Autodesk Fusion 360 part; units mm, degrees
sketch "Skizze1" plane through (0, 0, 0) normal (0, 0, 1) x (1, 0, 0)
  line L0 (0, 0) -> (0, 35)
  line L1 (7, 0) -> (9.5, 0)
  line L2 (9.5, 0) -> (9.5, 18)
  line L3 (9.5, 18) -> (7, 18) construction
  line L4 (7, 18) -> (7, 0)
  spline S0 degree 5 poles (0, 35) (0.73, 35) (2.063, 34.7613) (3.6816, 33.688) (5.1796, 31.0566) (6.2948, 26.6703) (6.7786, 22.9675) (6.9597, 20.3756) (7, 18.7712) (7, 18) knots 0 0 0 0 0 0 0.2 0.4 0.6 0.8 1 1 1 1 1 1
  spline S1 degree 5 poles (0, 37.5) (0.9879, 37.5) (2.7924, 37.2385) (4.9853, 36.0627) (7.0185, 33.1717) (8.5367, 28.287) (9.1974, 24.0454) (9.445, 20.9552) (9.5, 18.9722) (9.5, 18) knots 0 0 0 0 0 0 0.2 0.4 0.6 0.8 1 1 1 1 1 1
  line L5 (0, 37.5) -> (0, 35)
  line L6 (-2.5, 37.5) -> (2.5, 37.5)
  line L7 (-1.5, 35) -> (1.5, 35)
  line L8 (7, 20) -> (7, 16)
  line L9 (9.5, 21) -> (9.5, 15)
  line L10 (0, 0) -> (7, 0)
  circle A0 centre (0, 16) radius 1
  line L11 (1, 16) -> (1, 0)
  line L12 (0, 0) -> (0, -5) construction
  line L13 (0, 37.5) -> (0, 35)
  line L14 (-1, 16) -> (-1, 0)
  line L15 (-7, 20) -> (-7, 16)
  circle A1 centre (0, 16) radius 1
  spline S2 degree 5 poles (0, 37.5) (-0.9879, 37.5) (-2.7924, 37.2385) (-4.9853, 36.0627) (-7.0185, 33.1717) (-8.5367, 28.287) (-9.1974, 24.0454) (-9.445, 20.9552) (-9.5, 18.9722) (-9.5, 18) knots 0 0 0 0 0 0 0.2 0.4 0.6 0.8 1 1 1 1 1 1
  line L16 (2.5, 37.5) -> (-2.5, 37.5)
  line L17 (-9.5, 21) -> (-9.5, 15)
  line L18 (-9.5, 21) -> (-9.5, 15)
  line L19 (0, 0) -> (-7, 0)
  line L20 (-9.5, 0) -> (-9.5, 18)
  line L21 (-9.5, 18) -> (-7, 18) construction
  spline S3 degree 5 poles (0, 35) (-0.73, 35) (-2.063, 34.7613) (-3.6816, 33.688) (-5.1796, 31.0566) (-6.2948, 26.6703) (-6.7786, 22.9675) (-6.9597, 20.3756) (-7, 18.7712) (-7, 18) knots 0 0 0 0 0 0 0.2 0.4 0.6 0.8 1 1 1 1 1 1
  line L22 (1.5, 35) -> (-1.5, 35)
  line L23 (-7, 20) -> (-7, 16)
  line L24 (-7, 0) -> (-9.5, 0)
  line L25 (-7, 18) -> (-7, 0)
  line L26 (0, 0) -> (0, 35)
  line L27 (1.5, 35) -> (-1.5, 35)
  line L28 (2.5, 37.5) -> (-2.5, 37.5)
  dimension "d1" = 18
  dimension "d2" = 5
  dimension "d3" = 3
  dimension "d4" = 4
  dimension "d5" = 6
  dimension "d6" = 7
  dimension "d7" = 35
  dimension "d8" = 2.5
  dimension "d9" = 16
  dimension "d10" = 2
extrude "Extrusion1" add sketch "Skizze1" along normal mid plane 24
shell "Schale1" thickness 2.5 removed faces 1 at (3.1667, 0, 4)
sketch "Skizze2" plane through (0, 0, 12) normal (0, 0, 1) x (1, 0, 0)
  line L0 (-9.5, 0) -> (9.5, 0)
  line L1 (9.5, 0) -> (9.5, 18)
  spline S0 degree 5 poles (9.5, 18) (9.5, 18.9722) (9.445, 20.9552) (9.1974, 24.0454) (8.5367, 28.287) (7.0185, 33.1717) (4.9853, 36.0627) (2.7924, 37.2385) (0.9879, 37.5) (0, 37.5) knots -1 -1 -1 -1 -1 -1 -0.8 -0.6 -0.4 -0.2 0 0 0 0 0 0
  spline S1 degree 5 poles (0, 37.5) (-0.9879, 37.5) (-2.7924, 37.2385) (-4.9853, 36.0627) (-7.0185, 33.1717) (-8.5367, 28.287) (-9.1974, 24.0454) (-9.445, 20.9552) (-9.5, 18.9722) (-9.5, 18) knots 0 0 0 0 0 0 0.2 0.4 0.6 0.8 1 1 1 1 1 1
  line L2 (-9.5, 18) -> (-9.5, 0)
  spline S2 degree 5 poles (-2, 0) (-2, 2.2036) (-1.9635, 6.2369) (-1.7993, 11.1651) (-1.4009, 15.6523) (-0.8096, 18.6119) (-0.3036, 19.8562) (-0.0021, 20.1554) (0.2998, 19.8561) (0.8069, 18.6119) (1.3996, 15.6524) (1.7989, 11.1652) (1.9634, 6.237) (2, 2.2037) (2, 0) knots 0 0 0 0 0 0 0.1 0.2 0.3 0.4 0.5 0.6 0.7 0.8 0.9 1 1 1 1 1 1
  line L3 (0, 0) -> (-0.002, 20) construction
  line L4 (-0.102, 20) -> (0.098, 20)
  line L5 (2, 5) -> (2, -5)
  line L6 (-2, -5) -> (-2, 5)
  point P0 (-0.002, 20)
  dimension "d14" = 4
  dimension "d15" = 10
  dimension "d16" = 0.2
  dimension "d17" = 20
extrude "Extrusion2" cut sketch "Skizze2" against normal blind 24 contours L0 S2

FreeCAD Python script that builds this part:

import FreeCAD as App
import Part
import Sketcher
from FreeCAD import Vector


def faces_at(feature, points):
    """Names of the faces that lie closest to the given points."""
    faces = feature.Shape.Faces
    near = lambda p: min(range(len(faces)), key=lambda i: faces[i].distToShape(Part.Vertex(*p))[0])
    return sorted({f"Face{near(p) + 1}" for p in points})

doc = App.newDocument("Part")
body = doc.addObject("PartDesign::Body", "Body")

sketch1 = doc.addObject("Sketcher::SketchObject", "Sketch")
body.addObject(sketch1)
sketch1.AttachmentSupport = (doc.XY_Plane, [""])
sketch1.MapMode = "FlatFace"
sketch1.addGeometry(Part.LineSegment(Vector(9.5, 0, 0), Vector(9.5, 18, 0)), False)
sketch1.addGeometry(Part.BSplineCurve([Vector(0, 37.5, 0), Vector(0.9879, 37.5, 0), Vector(2.7924, 37.2385, 0), Vector(4.9853, 36.0627, 0), Vector(7.0185, 33.1717, 0), Vector(8.5367, 28.287, 0), Vector(9.1974, 24.0454, 0), Vector(9.445, 20.9552, 0), Vector(9.5, 18.9722, 0), Vector(9.5, 18, 0)], [6, 1, 1, 1, 1, 6], [0, 0.2, 0.4, 0.6, 0.8, 1], False, 5, [1, 1, 1, 1, 1, 1, 1, 1, 1, 1], False), False)
sketch1.addGeometry(Part.BSplineCurve([Vector(0, 37.5, 0), Vector(-0.9879, 37.5, 0), Vector(-2.7924, 37.2385, 0), Vector(-4.9853, 36.0627, 0), Vector(-7.0185, 33.1717, 0), Vector(-8.5367, 28.287, 0), Vector(-9.1974, 24.0454, 0), Vector(-9.445, 20.9552, 0), Vector(-9.5, 18.9722, 0), Vector(-9.5, 18, 0)], [6, 1, 1, 1, 1, 6], [0, 0.2, 0.4, 0.6, 0.8, 1], False, 5, [1, 1, 1, 1, 1, 1, 1, 1, 1, 1], False), False)
sketch1.addGeometry(Part.LineSegment(Vector(-9.5, 18, 0), Vector(-9.5, 0, 0)), False)
sketch1.addGeometry(Part.LineSegment(Vector(-9.5, 0, 0), Vector(9.5, 0, 0)), False)
sketch1.addConstraint(Sketcher.Constraint("Block", 1))
sketch1.addConstraint(Sketcher.Constraint("Block", 2))
sketch1.addConstraint(Sketcher.Constraint("Coincident", 0, 2, 1, 2))
sketch1.addConstraint(Sketcher.Constraint("Coincident", 2, 2, 3, 1))
sketch1.addConstraint(Sketcher.Constraint("Coincident", 3, 2, 4, 1))
sketch1.addConstraint(Sketcher.Constraint("Coincident", 4, 2, 0, 1))
sketch1.addConstraint(Sketcher.Constraint("Vertical", 0))
sketch1.addConstraint(Sketcher.Constraint("Vertical", 3))
sketch1.addConstraint(Sketcher.Constraint("Horizontal", 4))
sketch1.addConstraint(Sketcher.Constraint("PointOnObject", 3, 2, -1))
pad1 = doc.addObject("PartDesign::Pad", "Pad")
body.addObject(pad1)
pad1.Profile = sketch1
pad1.Length = 24
pad1.Midplane = True
doc.recompute()

thickness = doc.addObject("PartDesign::Thickness", "Thickness")
body.addObject(thickness)
thickness.Base = (pad1, faces_at(pad1, [(3.167, 0, 4)]))
thickness.Value = 2.5
thickness.Reversed = True
thickness.Join = "Intersection"

sketch2 = doc.addObject("Sketcher::SketchObject", "Sketch001")
body.addObject(sketch2)
sketch2.AttachmentSupport = (doc.XY_Plane, [""])
sketch2.MapMode = "FlatFace"
sketch2.AttachmentOffset = App.Placement(Vector(0, 0, 12), App.Rotation())
sketch2.addGeometry(Part.BSplineCurve([Vector(-2, 0, 0), Vector(-2, 2.2036, 0), Vector(-1.9635, 6.2369, 0), Vector(-1.7993, 11.1651, 0), Vector(-1.4009, 15.6523, 0), Vector(-0.809607, 18.611865, 0), Vector(-0.404812, 19.607311, 0), Vector(-0.193237, 19.928606, 0), Vector(-0.06577, 20, 0), Vector(-0.002019, 20, 0)], [6, 1, 1, 1, 1, 6], [0, 0.1, 0.2, 0.3, 0.4, 0.499994164], False, 5, [1, 1, 1, 1, 1, 1, 1, 1, 1, 1], False), False)
sketch2.addGeometry(Part.LineSegment(Vector(-2, 0, 0), Vector(2, 0, 0)), False)
sketch2.addGeometry(Part.BSplineCurve([Vector(-0.002019, 20, 0), Vector(-0.002016, 20, 0), Vector(0.061742, 19.999998, 0), Vector(0.189292, 19.928587, 0), Vector(0.401214, 19.607275, 0), Vector(0.8069, 18.6119, 0), Vector(1.3996, 15.6524, 0), Vector(1.7989, 11.1652, 0), Vector(1.9634, 6.237, 0), Vector(2, 2.2037, 0), Vector(2, 0, 0)], [6, 1, 1, 1, 1, 1, 6], [0.499994164, 0.5, 0.6, 0.7, 0.8, 0.9, 1], False, 5, [1, 1, 1, 1, 1, 1, 1, 1, 1, 1, 1], False), False)
sketch2.addConstraint(Sketcher.Constraint("Block", 0))
sketch2.addConstraint(Sketcher.Constraint("Block", 2))
sketch2.addConstraint(Sketcher.Constraint("Coincident", 0, 1, 1, 1))
sketch2.addConstraint(Sketcher.Constraint("Coincident", 1, 2, 2, 2))
pocket1 = doc.addObject("PartDesign::Pocket", "Pocket")
body.addObject(pocket1)
pocket1.Profile = sketch2
pocket1.Length = 24

doc.recompute()
